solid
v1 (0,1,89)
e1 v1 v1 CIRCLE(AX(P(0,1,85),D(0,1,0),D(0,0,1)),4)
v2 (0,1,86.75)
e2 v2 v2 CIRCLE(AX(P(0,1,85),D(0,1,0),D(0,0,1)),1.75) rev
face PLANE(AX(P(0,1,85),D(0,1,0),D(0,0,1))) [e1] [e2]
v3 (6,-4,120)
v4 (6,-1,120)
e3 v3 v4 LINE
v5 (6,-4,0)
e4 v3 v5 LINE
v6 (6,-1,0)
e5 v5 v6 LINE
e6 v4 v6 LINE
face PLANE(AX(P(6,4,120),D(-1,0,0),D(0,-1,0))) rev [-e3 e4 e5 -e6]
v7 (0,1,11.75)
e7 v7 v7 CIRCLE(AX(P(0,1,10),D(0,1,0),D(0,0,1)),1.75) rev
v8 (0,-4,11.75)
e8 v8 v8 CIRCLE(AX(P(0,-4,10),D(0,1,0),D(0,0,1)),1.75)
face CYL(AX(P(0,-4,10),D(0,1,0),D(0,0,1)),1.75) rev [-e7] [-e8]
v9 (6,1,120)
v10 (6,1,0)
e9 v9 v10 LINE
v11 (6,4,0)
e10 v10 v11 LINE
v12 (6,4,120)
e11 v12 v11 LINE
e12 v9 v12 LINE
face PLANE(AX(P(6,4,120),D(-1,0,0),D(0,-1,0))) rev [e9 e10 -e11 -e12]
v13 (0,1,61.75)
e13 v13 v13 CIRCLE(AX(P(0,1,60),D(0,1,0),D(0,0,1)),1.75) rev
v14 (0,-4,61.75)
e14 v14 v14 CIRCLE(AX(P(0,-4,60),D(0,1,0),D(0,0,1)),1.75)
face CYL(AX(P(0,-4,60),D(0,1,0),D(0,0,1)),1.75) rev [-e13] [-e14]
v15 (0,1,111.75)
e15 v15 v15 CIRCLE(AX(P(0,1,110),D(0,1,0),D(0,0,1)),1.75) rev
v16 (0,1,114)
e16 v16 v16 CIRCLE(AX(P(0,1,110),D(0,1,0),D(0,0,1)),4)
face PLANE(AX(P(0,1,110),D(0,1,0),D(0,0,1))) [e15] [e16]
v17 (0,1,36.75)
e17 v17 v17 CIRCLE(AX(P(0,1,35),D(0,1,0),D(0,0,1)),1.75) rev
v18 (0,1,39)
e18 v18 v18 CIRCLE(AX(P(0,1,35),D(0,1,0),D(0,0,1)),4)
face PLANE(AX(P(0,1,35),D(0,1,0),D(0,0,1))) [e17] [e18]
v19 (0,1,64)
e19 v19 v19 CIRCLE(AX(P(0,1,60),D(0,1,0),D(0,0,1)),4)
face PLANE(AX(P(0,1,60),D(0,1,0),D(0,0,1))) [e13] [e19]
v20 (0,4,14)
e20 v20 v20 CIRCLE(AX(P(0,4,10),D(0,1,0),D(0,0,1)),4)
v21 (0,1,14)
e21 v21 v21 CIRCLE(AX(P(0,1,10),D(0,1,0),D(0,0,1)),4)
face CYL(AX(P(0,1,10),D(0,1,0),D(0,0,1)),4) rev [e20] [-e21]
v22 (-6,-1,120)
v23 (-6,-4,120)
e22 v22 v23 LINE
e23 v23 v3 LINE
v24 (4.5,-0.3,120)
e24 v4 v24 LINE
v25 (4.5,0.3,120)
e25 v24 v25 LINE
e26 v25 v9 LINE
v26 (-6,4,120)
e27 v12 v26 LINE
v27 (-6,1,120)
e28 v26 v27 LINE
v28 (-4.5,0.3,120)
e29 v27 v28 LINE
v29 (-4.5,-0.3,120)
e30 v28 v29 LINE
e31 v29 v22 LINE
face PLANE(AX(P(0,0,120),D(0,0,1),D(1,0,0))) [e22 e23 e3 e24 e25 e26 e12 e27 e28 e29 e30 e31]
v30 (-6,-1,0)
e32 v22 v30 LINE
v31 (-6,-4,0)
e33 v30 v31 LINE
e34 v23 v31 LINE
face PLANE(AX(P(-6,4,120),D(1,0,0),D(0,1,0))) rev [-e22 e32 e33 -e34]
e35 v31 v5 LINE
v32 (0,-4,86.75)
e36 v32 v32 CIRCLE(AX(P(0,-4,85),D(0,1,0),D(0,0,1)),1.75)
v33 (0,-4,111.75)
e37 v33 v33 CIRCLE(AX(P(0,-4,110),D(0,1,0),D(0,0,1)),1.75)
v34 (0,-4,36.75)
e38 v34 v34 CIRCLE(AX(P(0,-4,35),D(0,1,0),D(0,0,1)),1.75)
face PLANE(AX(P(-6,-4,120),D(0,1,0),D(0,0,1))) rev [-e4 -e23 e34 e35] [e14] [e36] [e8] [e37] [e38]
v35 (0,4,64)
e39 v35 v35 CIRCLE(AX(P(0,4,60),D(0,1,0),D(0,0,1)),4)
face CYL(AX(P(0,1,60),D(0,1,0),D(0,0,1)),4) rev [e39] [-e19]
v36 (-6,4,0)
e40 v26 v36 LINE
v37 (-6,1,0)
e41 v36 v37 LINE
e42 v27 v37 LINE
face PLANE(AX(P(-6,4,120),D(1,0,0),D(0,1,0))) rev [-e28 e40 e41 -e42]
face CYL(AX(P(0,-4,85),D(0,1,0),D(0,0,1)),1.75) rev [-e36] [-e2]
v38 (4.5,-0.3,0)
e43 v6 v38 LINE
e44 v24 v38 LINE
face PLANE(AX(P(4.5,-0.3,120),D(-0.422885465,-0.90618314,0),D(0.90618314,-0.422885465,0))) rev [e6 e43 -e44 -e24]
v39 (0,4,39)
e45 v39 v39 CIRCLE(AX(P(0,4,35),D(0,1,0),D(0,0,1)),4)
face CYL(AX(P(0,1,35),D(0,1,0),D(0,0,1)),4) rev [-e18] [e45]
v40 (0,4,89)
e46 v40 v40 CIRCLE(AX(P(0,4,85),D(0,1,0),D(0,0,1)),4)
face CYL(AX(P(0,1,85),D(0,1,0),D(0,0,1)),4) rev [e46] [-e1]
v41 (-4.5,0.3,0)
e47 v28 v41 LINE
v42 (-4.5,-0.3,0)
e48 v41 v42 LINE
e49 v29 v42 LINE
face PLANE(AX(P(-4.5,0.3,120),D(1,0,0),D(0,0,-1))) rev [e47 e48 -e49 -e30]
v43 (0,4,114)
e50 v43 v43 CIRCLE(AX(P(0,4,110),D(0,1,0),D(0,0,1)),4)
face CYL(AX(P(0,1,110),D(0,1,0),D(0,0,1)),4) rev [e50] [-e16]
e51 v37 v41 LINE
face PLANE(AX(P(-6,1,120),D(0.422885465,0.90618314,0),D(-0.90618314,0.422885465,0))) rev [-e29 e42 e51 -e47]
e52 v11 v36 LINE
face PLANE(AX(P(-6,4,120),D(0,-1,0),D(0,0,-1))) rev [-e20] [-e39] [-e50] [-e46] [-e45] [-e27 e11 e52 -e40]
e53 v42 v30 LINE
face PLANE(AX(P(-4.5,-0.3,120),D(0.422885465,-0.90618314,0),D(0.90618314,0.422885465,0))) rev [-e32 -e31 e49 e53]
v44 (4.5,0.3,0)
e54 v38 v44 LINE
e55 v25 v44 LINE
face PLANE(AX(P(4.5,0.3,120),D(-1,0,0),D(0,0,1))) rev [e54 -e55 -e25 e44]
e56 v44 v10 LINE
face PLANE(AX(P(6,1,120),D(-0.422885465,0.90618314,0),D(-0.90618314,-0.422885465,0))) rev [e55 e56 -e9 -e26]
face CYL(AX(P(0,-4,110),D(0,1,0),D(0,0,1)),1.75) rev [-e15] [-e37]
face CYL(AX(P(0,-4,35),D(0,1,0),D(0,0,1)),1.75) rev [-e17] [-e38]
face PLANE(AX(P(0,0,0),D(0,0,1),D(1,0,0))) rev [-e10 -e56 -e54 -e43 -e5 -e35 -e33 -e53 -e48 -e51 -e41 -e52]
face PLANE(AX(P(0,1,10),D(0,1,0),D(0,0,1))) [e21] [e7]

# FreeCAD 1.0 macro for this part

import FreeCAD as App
import Part
import Sketcher

V = App.Vector
Q = App.Units.Quantity


def add_polygon(sketch, points):
    """Adds a closed chain of lines whose ends are joined by coincident constraints."""
    first, n = sketch.GeometryCount, len(points)
    for a, b in zip(points, points[1:] + points[:1]):
        sketch.addGeometry(Part.LineSegment(App.Vector(*a, 0), App.Vector(*b, 0)), False)
    for i in range(n):
        sketch.addConstraint(Sketcher.Constraint("Coincident", first + i, 2, first + (i + 1) % n, 1))

doc = App.newDocument("Part")
body = doc.addObject("PartDesign::Body", "Body")

sketch1 = doc.addObject("Sketcher::SketchObject", "Sketch")
body.addObject(sketch1)
sketch1.AttachmentSupport = (doc.XY_Plane, [""])
sketch1.MapMode = "FlatFace"
add_polygon(sketch1, [(-6, 4), (-6, -4), (6, -4), (6, 4)])
sketch1.addConstraint([
    Sketcher.Constraint("Vertical", 0),
    Sketcher.Constraint("Horizontal", 1),
    Sketcher.Constraint("Vertical", 2),
    Sketcher.Constraint("Horizontal", 3),
    Sketcher.Constraint("Symmetric", 0, 2, 2, 2, -1, 1),
    Sketcher.Constraint("DistanceX", 1, 1, 1, 2, Q("12 mm")),
    Sketcher.Constraint("DistanceY", 0, 2, 0, 1, Q("8 mm")),
])
pad1 = doc.addObject("PartDesign::Pad", "Pad")
body.addObject(pad1)
pad1.Profile = sketch1
pad1.Length = 120

sketch2 = doc.addObject("Sketcher::SketchObject", "Sketch001")
body.addObject(sketch2)
sketch2.AttachmentSupport = (doc.XZ_Plane, [""])
sketch2.MapMode = "FlatFace"
sketch2.AttachmentOffset = App.Placement(V(0, 0, -4), App.Rotation())
sketch2.addGeometry([
    Part.Circle(V(0, 10, 0), V(0, 0, 1), 1.8),
    Part.Circle(V(0, 35, 0), V(0, 0, 1), 1.8),
    Part.Circle(V(0, 60, 0), V(0, 0, 1), 1.8),
    Part.Circle(V(0, 85, 0), V(0, 0, 1), 1.8),
    Part.Circle(V(0, 110, 0), V(0, 0, 1), 1.8),
    Part.Circle(V(0, 135, 0), V(0, 0, 1), 1.8),
    Part.Circle(V(0, 160, 0), V(0, 0, 1), 1.8),
    Part.Circle(V(0, 185, 0), V(0, 0, 1), 1.8),
    Part.Circle(V(0, 210, 0), V(0, 0, 1), 1.8),
    Part.Circle(V(0, 235, 0), V(0, 0, 1), 1.8),
    Part.Circle(V(0, 260, 0), V(0, 0, 1), 1.8),
    Part.Circle(V(0, 285, 0), V(0, 0, 1), 1.8),
], False)
sketch2.addConstraint([
    Sketcher.Constraint("Equal", 0, 1),
    Sketcher.Constraint("Equal", 1, 2),
    Sketcher.Constraint("Equal", 2, 3),
    Sketcher.Constraint("Equal", 3, 4),
    Sketcher.Constraint("Equal", 4, 5),
    Sketcher.Constraint("Equal", 5, 6),
    Sketcher.Constraint("Equal", 6, 7),
    Sketcher.Constraint("Equal", 7, 8),
    Sketcher.Constraint("Equal", 8, 9),
    Sketcher.Constraint("Equal", 9, 10),
    Sketcher.Constraint("Equal", 10, 11),
    Sketcher.Constraint("PointOnObject", 0, 3, -2),
    Sketcher.Constraint("PointOnObject", 1, 3, -2),
    Sketcher.Constraint("PointOnObject", 2, 3, -2),
    Sketcher.Constraint("PointOnObject", 3, 3, -2),
    Sketcher.Constraint("PointOnObject", 4, 3, -2),
    Sketcher.Constraint("PointOnObject", 5, 3, -2),
    Sketcher.Constraint("PointOnObject", 6, 3, -2),
    Sketcher.Constraint("PointOnObject", 7, 3, -2),
    Sketcher.Constraint("PointOnObject", 8, 3, -2),
    Sketcher.Constraint("PointOnObject", 9, 3, -2),
    Sketcher.Constraint("PointOnObject", 10, 3, -2),
    Sketcher.Constraint("PointOnObject", 11, 3, -2),
    Sketcher.Constraint("Diameter", 0, Q("3.5 mm")),
    Sketcher.Constraint("DistanceY", -1, 1, 0, 3, Q("10 mm")),
    Sketcher.Constraint("DistanceY", -1, 1, 1, 3, Q("35 mm")),
    Sketcher.Constraint("DistanceY", -1, 1, 2, 3, Q("60 mm")),
    Sketcher.Constraint("DistanceY", -1, 1, 3, 3, Q("85 mm")),
    Sketcher.Constraint("DistanceY", -1, 1, 4, 3, Q("110 mm")),
    Sketcher.Constraint("DistanceY", -1, 1, 5, 3, Q("135 mm")),
    Sketcher.Constraint("DistanceY", -1, 1, 6, 3, Q("160 mm")),
    Sketcher.Constraint("DistanceY", -1, 1, 7, 3, Q("185 mm")),
    Sketcher.Constraint("DistanceY", -1, 1, 8, 3, Q("210 mm")),
    Sketcher.Constraint("DistanceY", -1, 1, 9, 3, Q("235 mm")),
    Sketcher.Constraint("DistanceY", -1, 1, 10, 3, Q("260 mm")),
    Sketcher.Constraint("DistanceY", -1, 1, 11, 3, Q("285 mm")),
])
pocket1 = doc.addObject("PartDesign::Pocket", "Pocket")
body.addObject(pocket1)
pocket1.Profile = sketch2
pocket1.Type = "ThroughAll"
pocket1.Reversed = True

sketch3 = doc.addObject("Sketcher::SketchObject", "Sketch002")
body.addObject(sketch3)
sketch3.AttachmentSupport = (doc.XZ_Plane, [""])
sketch3.MapMode = "FlatFace"
sketch3.AttachmentOffset = App.Placement(V(0, 0, -4), App.Rotation())
sketch3.addGeometry([
    Part.Circle(V(0, 10, 0), V(0, 0, 1), 4),
    Part.Circle(V(0, 35, 0), V(0, 0, 1), 4),
    Part.Circle(V(0, 60, 0), V(0, 0, 1), 4),
    Part.Circle(V(0, 85, 0), V(0, 0, 1), 4),
    Part.Circle(V(0, 110, 0), V(0, 0, 1), 4),
    Part.Circle(V(0, 135, 0), V(0, 0, 1), 4),
    Part.Circle(V(0, 160, 0), V(0, 0, 1), 4),
    Part.Circle(V(0, 185, 0), V(0, 0, 1), 4),
    Part.Circle(V(0, 210, 0), V(0, 0, 1), 4),
    Part.Circle(V(0, 235, 0), V(0, 0, 1), 4),
    Part.Circle(V(0, 260, 0), V(0, 0, 1), 4),
    Part.Circle(V(0, 285, 0), V(0, 0, 1), 4),
], False)
sketch3.addConstraint([
    Sketcher.Constraint("Equal", 0, 1),
    Sketcher.Constraint("Equal", 1, 2),
    Sketcher.Constraint("Equal", 2, 3),
    Sketcher.Constraint("Equal", 3, 4),
    Sketcher.Constraint("Equal", 4, 5),
    Sketcher.Constraint("Equal", 5, 6),
    Sketcher.Constraint("Equal", 6, 7),
    Sketcher.Constraint("Equal", 7, 8),
    Sketcher.Constraint("Equal", 8, 9),
    Sketcher.Constraint("Equal", 9, 10),
    Sketcher.Constraint("Equal", 10, 11),
    Sketcher.Constraint("PointOnObject", 0, 3, -2),
    Sketcher.Constraint("PointOnObject", 1, 3, -2),
    Sketcher.Constraint("PointOnObject", 2, 3, -2),
    Sketcher.Constraint("PointOnObject", 3, 3, -2),
    Sketcher.Constraint("PointOnObject", 4, 3, -2),
    Sketcher.Constraint("PointOnObject", 5, 3, -2),
    Sketcher.Constraint("PointOnObject", 6, 3, -2),
    Sketcher.Constraint("PointOnObject", 7, 3, -2),
    Sketcher.Constraint("PointOnObject", 8, 3, -2),
    Sketcher.Constraint("PointOnObject", 9, 3, -2),
    Sketcher.Constraint("PointOnObject", 10, 3, -2),
    Sketcher.Constraint("PointOnObject", 11, 3, -2),
    Sketcher.Constraint("Diameter", 0, Q("8 mm")),
    Sketcher.Constraint("DistanceY", -1, 1, 0, 3, Q("10 mm")),
    Sketcher.Constraint("DistanceY", -1, 1, 1, 3, Q("35 mm")),
    Sketcher.Constraint("DistanceY", -1, 1, 2, 3, Q("60 mm")),
    Sketcher.Constraint("DistanceY", -1, 1, 3, 3, Q("85 mm")),
    Sketcher.Constraint("DistanceY", -1, 1, 4, 3, Q("110 mm")),
    Sketcher.Constraint("DistanceY", -1, 1, 5, 3, Q("135 mm")),
    Sketcher.Constraint("DistanceY", -1, 1, 6, 3, Q("160 mm")),
    Sketcher.Constraint("DistanceY", -1, 1, 7, 3, Q("185 mm")),
    Sketcher.Constraint("DistanceY", -1, 1, 8, 3, Q("210 mm")),
    Sketcher.Constraint("DistanceY", -1, 1, 9, 3, Q("235 mm")),
    Sketcher.Constraint("DistanceY", -1, 1, 10, 3, Q("260 mm")),
    Sketcher.Constraint("DistanceY", -1, 1, 11, 3, Q("285 mm")),
])
pocket2 = doc.addObject("PartDesign::Pocket", "Pocket001")
body.addObject(pocket2)
pocket2.Profile = sketch3
pocket2.Length = 3
pocket2.Reversed = True

sketch4 = doc.addObject("Sketcher::SketchObject", "Sketch003")
body.addObject(sketch4)
sketch4.AttachmentSupport = (doc.XY_Plane, [""])
sketch4.MapMode = "FlatFace"
add_polygon(sketch4, [(-6, 1), (-4.5, 0.3), (-4.5, -0.3), (-6, -1)])
add_polygon(sketch4, [(4.5, 0.3), (6, 1), (6, -1), (4.5, -0.3)])
sketch4.addConstraint([
    Sketcher.Constraint("Vertical", 1),
    Sketcher.Constraint("Vertical", 3),
    Sketcher.Constraint("Vertical", 5),
    Sketcher.Constraint("Vertical", 7),
    Sketcher.Constraint("Symmetric", 2, 2, 4, 2, -1, 1),
    Sketcher.Constraint("Symmetric", 0, 2, 6, 2, -1, 1),
    Sketcher.Constraint("Parallel", 2, 4),
    Sketcher.Constraint("Parallel", 0, 6),
    Sketcher.Constraint("Horizontal", 3, 2, 4, 2),
    Sketcher.Constraint("Horizontal", 1, 2, 6, 2),
    Sketcher.Constraint("DistanceY", 3, 1, 3, 2, Q("2 mm")),
    Sketcher.Constraint("DistanceY", 1, 2, 1, 1, Q("0.6 mm")),
    Sketcher.Constraint("DistanceX", 2, 2, -1, 1, Q("6 mm")),
    Sketcher.Constraint("DistanceX", 1, 2, 6, 2, Q("9 mm")),
])
pocket3 = doc.addObject("PartDesign::Pocket", "Pocket002")
body.addObject(pocket3)
pocket3.Profile = sketch4
pocket3.Type = "ThroughAll"
pocket3.Reversed = True

doc.recompute()
